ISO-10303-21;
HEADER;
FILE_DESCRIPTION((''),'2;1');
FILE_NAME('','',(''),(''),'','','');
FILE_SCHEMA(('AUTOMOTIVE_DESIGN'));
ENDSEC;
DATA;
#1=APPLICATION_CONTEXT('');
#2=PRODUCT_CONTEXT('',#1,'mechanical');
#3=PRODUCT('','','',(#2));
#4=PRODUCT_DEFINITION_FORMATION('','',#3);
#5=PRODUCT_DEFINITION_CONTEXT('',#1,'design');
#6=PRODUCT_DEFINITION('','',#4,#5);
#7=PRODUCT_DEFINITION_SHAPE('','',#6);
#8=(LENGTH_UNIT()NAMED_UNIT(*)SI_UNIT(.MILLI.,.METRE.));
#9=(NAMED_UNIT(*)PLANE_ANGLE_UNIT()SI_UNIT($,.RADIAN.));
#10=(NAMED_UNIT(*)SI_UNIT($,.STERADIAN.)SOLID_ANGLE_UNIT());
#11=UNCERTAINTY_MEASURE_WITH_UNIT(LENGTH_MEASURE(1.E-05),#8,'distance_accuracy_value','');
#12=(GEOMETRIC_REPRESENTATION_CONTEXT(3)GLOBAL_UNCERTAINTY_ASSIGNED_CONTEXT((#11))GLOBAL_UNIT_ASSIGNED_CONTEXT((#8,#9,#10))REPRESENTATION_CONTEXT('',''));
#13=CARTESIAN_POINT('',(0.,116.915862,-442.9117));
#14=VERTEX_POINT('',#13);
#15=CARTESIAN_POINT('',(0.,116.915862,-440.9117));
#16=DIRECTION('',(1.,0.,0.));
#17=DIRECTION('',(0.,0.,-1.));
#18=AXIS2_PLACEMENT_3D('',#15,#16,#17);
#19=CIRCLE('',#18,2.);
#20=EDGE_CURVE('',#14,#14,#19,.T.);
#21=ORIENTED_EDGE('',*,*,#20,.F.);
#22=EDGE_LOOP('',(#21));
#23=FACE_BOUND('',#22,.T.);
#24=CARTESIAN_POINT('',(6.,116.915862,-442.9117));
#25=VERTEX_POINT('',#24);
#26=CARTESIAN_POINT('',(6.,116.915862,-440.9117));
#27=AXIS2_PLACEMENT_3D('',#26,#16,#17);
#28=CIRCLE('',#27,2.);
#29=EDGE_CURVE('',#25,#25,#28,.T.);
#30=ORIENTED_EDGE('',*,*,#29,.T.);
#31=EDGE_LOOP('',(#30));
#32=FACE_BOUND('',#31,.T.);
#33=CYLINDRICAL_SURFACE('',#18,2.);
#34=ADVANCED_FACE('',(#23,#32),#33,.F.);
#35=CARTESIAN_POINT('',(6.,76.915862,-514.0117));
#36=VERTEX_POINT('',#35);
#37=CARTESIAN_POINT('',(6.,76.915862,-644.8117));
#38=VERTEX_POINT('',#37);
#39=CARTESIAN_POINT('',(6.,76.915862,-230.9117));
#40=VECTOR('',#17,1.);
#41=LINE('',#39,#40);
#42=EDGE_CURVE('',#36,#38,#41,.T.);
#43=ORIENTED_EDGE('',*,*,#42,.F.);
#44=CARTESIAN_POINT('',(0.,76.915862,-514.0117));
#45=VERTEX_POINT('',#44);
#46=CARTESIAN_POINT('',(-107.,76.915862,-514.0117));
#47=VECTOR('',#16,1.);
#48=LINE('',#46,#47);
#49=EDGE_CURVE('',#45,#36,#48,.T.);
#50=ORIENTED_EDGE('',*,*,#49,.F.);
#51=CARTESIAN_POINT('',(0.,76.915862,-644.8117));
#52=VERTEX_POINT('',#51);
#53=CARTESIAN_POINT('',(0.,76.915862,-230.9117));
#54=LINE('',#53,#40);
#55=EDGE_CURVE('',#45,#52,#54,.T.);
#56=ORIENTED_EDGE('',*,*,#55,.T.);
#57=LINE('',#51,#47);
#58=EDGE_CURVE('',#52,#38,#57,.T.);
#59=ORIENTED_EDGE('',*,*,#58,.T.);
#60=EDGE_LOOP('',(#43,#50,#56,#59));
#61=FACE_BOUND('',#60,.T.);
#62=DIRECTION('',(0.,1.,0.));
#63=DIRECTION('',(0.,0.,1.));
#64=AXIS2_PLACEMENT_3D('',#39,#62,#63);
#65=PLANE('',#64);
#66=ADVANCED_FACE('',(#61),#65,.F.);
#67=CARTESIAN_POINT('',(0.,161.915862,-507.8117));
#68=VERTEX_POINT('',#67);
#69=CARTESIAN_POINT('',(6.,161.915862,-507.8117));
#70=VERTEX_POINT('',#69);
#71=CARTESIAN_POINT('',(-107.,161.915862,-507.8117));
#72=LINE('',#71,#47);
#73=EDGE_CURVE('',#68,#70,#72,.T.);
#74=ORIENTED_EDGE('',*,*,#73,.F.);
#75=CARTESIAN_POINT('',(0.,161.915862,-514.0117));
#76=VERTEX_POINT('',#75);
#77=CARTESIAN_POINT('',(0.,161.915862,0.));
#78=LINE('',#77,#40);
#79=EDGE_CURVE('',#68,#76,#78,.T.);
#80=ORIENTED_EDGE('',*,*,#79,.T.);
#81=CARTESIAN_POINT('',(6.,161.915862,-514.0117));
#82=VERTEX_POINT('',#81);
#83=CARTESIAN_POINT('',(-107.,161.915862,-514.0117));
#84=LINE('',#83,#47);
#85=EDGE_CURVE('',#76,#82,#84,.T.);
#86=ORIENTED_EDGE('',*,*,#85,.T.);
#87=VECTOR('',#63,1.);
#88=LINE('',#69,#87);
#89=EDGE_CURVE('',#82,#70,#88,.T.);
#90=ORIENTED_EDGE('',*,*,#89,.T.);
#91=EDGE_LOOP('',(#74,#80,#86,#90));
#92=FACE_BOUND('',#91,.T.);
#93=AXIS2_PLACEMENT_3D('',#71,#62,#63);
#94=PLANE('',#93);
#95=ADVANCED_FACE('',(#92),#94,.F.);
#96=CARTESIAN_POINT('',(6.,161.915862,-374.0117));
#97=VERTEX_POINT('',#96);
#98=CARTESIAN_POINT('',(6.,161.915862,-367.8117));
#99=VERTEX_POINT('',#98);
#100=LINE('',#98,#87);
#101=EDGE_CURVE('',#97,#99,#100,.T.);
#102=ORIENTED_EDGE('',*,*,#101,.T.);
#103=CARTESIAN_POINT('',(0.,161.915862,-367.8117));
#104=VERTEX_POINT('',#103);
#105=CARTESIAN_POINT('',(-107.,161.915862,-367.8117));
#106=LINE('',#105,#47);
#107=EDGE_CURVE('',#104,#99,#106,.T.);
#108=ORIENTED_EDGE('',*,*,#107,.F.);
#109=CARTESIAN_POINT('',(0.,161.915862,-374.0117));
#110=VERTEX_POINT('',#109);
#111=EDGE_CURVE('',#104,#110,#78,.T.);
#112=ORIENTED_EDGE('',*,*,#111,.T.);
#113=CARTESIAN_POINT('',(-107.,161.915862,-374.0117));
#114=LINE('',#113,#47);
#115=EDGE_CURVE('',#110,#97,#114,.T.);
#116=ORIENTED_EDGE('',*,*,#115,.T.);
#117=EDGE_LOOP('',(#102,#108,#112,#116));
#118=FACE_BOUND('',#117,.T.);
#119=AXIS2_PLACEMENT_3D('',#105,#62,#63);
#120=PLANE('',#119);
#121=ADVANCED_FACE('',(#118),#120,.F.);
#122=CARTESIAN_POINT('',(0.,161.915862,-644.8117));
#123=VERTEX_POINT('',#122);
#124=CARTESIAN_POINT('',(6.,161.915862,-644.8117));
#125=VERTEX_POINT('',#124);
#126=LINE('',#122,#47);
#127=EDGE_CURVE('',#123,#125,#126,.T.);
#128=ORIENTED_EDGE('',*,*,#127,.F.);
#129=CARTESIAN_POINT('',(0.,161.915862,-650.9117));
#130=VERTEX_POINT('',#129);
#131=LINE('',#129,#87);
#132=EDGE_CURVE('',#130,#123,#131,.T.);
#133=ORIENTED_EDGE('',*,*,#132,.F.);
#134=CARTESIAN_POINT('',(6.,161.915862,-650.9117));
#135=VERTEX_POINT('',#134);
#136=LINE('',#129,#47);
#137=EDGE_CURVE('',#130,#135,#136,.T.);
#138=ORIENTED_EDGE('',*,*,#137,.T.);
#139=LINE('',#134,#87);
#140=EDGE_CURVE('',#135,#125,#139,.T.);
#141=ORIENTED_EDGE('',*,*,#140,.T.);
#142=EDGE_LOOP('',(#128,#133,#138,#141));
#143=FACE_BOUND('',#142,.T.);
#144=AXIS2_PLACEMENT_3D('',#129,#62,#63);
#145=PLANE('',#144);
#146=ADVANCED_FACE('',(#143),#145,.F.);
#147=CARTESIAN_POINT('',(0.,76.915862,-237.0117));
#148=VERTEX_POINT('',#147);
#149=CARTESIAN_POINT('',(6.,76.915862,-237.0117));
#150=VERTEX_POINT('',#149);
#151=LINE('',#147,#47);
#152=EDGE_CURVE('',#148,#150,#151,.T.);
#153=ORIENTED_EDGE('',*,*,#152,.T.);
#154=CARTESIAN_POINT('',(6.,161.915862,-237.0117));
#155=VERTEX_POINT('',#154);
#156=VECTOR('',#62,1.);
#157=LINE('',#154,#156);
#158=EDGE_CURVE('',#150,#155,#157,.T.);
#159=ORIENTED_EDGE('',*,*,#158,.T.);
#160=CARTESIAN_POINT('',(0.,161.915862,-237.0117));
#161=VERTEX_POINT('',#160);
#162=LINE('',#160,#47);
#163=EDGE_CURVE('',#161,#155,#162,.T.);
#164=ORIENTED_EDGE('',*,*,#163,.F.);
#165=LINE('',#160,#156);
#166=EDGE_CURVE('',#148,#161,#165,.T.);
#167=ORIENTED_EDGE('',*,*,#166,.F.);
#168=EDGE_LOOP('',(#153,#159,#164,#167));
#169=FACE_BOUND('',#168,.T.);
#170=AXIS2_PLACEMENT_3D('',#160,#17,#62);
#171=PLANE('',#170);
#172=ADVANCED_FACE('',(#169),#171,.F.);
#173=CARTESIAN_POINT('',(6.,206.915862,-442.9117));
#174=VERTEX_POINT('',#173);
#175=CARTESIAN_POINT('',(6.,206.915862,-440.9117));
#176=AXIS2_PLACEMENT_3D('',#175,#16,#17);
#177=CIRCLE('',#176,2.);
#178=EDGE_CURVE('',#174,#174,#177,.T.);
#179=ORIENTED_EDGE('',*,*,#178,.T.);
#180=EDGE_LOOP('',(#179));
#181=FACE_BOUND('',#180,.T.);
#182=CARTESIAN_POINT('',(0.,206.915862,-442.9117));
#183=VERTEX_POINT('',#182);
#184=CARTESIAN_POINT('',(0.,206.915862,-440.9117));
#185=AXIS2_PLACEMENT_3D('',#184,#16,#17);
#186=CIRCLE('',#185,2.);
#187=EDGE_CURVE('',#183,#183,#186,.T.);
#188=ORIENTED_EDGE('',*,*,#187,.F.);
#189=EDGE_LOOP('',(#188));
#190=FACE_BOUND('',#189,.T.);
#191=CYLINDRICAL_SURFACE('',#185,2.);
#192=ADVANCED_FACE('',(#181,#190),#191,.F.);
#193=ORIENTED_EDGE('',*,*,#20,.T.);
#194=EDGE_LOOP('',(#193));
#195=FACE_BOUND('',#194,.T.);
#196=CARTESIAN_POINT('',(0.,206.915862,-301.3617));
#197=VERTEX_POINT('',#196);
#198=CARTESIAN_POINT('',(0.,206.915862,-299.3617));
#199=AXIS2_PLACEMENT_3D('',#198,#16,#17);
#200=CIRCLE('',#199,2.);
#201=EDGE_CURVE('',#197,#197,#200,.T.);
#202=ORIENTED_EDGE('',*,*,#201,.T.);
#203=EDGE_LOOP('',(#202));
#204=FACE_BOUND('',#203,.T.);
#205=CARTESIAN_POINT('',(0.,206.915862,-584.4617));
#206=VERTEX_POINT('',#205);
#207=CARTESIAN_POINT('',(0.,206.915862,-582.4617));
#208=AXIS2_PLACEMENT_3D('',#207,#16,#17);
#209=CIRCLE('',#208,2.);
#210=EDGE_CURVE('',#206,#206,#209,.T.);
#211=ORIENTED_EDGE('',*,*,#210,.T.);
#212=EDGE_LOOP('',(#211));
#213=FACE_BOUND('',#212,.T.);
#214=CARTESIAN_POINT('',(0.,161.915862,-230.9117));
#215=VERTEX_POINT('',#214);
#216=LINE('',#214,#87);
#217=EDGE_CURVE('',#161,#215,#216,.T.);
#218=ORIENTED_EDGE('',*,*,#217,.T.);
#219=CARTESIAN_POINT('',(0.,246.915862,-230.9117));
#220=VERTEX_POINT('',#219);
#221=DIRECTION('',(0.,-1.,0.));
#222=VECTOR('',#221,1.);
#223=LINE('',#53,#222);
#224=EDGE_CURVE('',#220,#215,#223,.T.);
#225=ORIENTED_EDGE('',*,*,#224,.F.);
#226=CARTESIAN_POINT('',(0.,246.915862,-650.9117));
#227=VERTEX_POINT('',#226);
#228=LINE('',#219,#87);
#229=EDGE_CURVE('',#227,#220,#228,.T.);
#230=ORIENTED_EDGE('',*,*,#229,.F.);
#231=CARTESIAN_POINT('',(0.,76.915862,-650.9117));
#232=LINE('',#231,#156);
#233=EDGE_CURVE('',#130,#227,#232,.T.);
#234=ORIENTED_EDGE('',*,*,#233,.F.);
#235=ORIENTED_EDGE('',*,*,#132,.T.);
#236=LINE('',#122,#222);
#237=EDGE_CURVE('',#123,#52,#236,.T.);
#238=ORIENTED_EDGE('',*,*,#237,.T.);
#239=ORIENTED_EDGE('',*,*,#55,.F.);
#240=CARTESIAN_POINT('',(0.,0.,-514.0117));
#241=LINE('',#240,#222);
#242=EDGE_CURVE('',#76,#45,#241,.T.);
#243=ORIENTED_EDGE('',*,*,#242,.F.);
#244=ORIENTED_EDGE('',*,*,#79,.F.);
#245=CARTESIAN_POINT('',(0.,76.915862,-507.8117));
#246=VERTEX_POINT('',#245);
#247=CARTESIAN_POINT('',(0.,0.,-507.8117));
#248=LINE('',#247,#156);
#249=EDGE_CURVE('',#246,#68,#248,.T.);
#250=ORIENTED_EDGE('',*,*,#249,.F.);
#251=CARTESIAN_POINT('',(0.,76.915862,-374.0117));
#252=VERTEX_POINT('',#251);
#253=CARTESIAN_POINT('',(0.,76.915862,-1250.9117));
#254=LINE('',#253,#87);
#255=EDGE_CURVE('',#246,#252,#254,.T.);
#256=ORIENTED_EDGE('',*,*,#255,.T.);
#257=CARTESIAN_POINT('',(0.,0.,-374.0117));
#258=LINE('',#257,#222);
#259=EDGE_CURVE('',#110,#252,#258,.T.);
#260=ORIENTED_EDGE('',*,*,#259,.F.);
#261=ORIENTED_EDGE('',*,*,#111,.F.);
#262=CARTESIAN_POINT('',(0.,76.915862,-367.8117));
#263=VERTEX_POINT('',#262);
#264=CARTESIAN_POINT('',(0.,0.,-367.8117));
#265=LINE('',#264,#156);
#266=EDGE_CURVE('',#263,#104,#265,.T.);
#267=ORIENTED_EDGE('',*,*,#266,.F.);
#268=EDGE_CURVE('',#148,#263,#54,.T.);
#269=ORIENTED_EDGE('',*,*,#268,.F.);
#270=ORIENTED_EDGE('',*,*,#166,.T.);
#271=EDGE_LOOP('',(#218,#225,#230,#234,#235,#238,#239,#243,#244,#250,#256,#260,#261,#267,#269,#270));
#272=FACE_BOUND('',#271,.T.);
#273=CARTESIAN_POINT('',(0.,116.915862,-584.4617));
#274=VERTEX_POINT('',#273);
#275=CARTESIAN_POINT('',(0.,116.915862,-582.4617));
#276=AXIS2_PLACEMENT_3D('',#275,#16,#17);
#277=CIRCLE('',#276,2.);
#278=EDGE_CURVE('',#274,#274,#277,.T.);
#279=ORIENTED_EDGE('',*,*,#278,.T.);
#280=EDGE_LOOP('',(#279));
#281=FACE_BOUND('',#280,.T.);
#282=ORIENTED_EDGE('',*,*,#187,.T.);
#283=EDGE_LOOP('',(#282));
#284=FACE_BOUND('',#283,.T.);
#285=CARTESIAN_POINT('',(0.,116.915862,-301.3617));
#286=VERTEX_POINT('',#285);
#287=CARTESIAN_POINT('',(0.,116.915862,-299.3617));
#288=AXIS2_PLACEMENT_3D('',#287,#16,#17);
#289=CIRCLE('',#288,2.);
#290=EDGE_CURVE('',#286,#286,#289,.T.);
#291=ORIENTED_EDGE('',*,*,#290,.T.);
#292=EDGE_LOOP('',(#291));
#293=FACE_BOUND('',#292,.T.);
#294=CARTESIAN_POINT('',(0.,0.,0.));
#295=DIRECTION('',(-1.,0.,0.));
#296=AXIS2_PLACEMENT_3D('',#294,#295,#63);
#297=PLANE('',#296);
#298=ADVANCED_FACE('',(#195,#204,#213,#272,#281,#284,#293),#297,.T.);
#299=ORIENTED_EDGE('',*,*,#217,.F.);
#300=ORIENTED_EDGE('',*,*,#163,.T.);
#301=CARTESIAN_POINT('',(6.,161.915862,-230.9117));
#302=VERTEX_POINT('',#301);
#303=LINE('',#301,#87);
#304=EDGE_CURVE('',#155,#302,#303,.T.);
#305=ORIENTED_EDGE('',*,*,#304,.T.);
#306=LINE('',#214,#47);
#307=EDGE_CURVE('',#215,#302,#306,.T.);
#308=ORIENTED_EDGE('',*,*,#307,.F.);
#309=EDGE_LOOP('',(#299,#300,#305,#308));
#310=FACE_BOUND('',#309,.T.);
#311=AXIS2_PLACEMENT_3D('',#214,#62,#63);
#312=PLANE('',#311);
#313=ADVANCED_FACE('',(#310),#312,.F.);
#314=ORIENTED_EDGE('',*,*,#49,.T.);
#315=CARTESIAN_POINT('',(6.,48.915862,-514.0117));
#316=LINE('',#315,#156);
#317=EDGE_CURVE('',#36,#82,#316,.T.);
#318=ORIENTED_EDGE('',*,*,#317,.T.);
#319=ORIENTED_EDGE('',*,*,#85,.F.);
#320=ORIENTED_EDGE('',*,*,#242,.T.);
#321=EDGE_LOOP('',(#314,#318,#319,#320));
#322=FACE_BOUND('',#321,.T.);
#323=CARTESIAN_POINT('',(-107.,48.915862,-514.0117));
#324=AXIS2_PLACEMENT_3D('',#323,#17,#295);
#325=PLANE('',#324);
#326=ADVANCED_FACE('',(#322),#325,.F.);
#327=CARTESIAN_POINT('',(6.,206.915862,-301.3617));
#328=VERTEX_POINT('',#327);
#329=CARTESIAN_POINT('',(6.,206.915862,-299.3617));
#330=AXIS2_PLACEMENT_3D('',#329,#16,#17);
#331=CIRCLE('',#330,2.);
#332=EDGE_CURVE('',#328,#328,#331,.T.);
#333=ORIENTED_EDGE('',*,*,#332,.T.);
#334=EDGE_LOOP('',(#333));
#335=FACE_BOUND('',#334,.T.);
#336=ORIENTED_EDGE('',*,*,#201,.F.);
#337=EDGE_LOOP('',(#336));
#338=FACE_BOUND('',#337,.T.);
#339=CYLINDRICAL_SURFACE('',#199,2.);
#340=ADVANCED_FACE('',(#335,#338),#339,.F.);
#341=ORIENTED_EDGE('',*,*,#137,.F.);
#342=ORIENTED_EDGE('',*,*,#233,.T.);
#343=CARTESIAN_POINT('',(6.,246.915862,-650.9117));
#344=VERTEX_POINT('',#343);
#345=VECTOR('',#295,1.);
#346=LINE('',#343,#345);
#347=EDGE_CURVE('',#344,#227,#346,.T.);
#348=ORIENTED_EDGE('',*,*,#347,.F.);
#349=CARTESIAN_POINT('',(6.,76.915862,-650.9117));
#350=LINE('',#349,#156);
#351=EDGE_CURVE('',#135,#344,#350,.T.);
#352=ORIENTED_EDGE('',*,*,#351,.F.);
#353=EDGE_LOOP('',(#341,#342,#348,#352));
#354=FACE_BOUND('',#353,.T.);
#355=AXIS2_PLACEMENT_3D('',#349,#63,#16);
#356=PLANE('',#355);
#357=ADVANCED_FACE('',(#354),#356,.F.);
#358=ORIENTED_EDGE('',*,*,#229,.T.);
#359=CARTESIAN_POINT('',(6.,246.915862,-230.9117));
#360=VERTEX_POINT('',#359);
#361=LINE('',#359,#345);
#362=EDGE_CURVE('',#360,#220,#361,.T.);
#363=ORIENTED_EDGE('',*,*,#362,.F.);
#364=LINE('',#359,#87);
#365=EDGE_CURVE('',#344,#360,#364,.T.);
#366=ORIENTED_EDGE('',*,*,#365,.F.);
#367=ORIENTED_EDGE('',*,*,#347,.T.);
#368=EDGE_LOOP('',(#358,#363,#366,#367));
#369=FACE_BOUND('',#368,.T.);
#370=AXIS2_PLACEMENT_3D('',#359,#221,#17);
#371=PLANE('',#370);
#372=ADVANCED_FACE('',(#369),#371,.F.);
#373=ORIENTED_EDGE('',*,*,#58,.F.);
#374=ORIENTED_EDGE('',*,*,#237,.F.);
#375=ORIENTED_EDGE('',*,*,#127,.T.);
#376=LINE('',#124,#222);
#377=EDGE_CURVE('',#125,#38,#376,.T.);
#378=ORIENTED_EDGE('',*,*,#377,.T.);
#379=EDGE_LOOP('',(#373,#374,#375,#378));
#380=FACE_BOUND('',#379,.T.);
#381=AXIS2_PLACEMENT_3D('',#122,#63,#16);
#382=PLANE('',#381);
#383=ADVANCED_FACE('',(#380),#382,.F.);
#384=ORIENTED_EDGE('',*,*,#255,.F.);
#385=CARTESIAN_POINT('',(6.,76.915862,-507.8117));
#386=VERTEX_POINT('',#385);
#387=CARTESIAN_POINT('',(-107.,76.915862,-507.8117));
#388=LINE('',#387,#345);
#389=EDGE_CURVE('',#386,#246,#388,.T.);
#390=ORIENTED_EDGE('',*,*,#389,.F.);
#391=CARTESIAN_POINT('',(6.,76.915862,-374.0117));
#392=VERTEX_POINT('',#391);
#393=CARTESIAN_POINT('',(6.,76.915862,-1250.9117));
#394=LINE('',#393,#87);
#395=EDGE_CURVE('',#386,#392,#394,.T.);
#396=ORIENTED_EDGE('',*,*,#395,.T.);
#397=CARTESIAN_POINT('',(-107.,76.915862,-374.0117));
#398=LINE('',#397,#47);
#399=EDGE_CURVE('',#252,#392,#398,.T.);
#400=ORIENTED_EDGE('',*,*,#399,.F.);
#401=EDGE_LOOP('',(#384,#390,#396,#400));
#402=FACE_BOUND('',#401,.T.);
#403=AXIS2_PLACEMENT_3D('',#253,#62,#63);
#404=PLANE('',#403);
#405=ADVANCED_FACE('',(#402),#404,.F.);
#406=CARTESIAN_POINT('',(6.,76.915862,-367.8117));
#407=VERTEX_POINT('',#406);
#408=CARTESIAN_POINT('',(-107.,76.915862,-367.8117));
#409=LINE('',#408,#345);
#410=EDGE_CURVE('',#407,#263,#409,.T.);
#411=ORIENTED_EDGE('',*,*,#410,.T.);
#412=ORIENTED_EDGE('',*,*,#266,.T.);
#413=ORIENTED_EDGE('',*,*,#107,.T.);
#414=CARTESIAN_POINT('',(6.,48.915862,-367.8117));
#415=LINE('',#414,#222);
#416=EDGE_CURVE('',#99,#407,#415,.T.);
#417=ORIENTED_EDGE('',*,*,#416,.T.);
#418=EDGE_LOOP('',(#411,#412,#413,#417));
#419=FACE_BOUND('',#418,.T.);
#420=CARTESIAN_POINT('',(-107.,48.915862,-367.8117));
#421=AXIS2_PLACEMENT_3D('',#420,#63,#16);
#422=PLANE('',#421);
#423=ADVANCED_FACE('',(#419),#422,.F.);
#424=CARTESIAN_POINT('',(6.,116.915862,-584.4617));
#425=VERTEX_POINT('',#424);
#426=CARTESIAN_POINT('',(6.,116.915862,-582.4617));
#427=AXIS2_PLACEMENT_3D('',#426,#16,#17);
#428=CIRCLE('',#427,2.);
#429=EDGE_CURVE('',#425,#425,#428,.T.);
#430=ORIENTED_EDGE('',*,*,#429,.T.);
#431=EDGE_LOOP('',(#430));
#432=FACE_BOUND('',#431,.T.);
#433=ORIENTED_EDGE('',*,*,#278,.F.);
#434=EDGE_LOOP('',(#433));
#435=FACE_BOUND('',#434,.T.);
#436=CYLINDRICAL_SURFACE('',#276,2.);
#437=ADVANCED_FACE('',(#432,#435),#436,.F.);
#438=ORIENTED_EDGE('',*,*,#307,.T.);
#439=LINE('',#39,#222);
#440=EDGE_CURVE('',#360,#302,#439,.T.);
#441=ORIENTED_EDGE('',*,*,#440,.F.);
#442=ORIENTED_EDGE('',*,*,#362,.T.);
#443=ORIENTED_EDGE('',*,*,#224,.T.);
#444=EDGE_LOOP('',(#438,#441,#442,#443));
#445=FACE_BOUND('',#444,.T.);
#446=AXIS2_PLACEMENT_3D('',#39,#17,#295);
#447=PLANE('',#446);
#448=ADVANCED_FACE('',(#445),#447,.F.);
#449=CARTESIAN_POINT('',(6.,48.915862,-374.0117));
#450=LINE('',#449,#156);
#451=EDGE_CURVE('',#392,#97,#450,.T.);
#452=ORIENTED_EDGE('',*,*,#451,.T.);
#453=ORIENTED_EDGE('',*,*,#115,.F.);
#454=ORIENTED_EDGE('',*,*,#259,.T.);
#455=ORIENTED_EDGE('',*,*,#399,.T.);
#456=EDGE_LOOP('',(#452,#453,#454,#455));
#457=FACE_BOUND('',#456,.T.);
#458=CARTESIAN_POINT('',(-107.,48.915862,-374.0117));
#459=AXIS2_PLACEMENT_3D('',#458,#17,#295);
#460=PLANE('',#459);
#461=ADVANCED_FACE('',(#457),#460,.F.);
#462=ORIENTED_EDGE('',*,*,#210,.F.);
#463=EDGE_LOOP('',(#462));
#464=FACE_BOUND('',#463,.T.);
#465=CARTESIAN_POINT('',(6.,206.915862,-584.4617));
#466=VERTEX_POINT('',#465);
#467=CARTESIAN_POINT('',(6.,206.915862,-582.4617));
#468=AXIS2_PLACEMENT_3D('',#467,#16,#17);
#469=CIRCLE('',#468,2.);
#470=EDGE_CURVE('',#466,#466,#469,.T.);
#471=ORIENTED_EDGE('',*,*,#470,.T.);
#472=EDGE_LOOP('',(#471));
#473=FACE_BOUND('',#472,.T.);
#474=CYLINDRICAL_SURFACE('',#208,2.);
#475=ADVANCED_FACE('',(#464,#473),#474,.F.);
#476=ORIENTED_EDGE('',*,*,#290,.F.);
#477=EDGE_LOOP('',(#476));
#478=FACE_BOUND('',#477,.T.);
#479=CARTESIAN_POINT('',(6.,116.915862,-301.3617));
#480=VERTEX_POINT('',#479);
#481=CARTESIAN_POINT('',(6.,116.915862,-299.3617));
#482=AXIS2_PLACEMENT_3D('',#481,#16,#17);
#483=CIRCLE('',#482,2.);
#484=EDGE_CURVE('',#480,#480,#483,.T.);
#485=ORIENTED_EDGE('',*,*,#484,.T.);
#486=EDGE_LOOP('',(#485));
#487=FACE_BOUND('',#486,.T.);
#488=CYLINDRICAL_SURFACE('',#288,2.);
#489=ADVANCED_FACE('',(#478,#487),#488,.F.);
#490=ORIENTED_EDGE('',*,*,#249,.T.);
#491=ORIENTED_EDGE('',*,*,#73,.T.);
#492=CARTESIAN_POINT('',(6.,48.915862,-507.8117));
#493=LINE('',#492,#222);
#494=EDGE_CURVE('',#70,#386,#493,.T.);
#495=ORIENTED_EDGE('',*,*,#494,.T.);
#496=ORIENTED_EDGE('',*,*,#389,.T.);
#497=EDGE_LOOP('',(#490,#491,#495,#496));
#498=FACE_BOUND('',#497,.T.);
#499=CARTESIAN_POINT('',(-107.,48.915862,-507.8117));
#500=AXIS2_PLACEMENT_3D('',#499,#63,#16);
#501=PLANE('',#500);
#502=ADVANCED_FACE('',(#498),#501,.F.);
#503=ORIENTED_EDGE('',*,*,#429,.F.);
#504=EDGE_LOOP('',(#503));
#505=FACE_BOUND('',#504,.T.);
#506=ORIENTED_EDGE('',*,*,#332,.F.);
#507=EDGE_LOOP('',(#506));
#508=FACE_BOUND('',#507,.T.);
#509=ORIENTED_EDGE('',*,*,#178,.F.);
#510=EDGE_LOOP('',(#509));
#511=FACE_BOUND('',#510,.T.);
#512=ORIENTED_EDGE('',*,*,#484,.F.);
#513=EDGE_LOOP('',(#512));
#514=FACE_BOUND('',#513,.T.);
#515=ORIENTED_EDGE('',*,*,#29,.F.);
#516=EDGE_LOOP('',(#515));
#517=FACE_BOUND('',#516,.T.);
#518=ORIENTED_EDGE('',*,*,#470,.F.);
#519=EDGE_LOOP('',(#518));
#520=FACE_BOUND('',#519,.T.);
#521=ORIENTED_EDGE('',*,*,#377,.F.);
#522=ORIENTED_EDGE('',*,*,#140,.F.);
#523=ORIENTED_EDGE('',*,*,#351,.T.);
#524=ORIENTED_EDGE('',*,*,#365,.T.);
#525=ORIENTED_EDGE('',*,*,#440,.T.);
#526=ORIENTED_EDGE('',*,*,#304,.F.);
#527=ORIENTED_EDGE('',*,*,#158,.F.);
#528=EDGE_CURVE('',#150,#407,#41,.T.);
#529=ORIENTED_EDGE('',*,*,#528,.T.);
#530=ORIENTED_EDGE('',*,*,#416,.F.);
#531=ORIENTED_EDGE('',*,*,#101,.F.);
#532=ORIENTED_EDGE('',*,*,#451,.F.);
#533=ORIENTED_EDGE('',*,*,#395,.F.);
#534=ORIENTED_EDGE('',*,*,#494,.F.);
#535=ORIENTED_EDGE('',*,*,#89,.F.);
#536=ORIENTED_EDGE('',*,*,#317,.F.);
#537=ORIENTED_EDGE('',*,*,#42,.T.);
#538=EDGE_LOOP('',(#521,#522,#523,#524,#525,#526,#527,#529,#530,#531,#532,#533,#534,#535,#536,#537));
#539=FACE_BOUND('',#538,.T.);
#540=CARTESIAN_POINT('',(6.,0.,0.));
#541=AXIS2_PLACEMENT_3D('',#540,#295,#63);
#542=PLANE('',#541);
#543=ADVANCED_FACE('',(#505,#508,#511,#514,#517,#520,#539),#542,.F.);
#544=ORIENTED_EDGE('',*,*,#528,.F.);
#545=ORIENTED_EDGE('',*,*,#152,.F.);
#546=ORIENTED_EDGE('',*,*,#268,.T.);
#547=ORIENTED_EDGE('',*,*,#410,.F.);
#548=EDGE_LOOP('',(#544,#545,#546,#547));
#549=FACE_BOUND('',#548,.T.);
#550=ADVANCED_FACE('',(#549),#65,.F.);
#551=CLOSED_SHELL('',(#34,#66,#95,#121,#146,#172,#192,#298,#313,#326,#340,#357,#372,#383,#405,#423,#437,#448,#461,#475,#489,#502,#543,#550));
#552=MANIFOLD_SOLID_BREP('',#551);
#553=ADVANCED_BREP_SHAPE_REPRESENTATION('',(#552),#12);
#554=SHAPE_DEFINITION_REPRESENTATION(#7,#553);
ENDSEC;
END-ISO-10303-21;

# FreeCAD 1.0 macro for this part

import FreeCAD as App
import Part
import Sketcher
from FreeCAD import Vector
Q = App.Units.Quantity

doc = App.newDocument("Part")
body = doc.addObject("PartDesign::Body", "Body")

sketch1 = body.newObject("Sketcher::SketchObject", "Sketch")
sketch1.AttachmentSupport = (doc.getObject("YZ_Plane"), [""])
sketch1.MapMode = "FlatFace"
sketch1.addGeometry(Part.LineSegment(Vector(247, -231, 0), Vector(77, -231, 0)), False)
sketch1.addGeometry(Part.LineSegment(Vector(77, -231, 0), Vector(77, -651, 0)), False)
sketch1.addGeometry(Part.LineSegment(Vector(77, -651, 0), Vector(247, -651, 0)), False)
sketch1.addGeometry(Part.LineSegment(Vector(247, -651, 0), Vector(247, -231, 0)), False)
sketch1.addConstraint(Sketcher.Constraint("Coincident", 0, 2, 1, 1))
sketch1.addConstraint(Sketcher.Constraint("Coincident", 1, 2, 2, 1))
sketch1.addConstraint(Sketcher.Constraint("Coincident", 2, 2, 3, 1))
sketch1.addConstraint(Sketcher.Constraint("Coincident", 3, 2, 0, 1))
sketch1.addConstraint(Sketcher.Constraint("Horizontal", 0))
sketch1.addConstraint(Sketcher.Constraint("Vertical", 1))
sketch1.addConstraint(Sketcher.Constraint("Horizontal", 2))
sketch1.addConstraint(Sketcher.Constraint("Vertical", 3))
sketch1.addConstraint(Sketcher.Constraint("DistanceX", 0, 2, 0, 1, Q("170 mm")))
sketch1.addConstraint(Sketcher.Constraint("DistanceY", 1, 2, 1, 1, Q("420 mm")))
sketch1.addConstraint(Sketcher.Constraint("DistanceY", 0, 2, -1, 1, Q("230.9117 mm")))
sketch1.addConstraint(Sketcher.Constraint("DistanceX", -1, 1, 0, 2, Q("76.915862 mm")))
pad1 = body.newObject("PartDesign::Pad", "Pad")
pad1.Profile = sketch1
pad1.Length = 6

sketch2 = body.newObject("Sketcher::SketchObject", "Sketch001")
sketch2.AttachmentSupport = (doc.getObject("YZ_Plane"), [""])
sketch2.MapMode = "FlatFace"
sketch2.AttachmentOffset = App.Placement(Vector(0, 0, 6), App.Rotation())
sketch2.addGeometry(Part.LineSegment(Vector(162, -231, 0), Vector(77, -231, 0)), False)
sketch2.addGeometry(Part.LineSegment(Vector(77, -231, 0), Vector(77, -237, 0)), False)
sketch2.addGeometry(Part.LineSegment(Vector(77, -237, 0), Vector(162, -237, 0)), False)
sketch2.addGeometry(Part.LineSegment(Vector(162, -237, 0), Vector(162, -231, 0)), False)
sketch2.addGeometry(Part.LineSegment(Vector(162, -645, 0), Vector(77, -645, 0)), False)
sketch2.addGeometry(Part.LineSegment(Vector(77, -645, 0), Vector(77, -651, 0)), False)
sketch2.addGeometry(Part.LineSegment(Vector(77, -651, 0), Vector(162, -651, 0)), False)
sketch2.addGeometry(Part.LineSegment(Vector(162, -651, 0), Vector(162, -645, 0)), False)
sketch2.addGeometry(Part.LineSegment(Vector(247, -368, 0), Vector(162, -368, 0)), False)
sketch2.addGeometry(Part.LineSegment(Vector(162, -368, 0), Vector(162, -374, 0)), False)
sketch2.addGeometry(Part.LineSegment(Vector(162, -374, 0), Vector(247, -374, 0)), False)
sketch2.addGeometry(Part.LineSegment(Vector(247, -374, 0), Vector(247, -368, 0)), False)
sketch2.addGeometry(Part.LineSegment(Vector(247, -508, 0), Vector(162, -508, 0)), False)
sketch2.addGeometry(Part.LineSegment(Vector(162, -508, 0), Vector(162, -514, 0)), False)
sketch2.addGeometry(Part.LineSegment(Vector(162, -514, 0), Vector(247, -514, 0)), False)
sketch2.addGeometry(Part.LineSegment(Vector(247, -514, 0), Vector(247, -508, 0)), False)
sketch2.addConstraint(Sketcher.Constraint("Coincident", 0, 2, 1, 1))
sketch2.addConstraint(Sketcher.Constraint("Coincident", 1, 2, 2, 1))
sketch2.addConstraint(Sketcher.Constraint("Coincident", 2, 2, 3, 1))
sketch2.addConstraint(Sketcher.Constraint("Coincident", 3, 2, 0, 1))
sketch2.addConstraint(Sketcher.Constraint("Coincident", 4, 2, 5, 1))
sketch2.addConstraint(Sketcher.Constraint("Coincident", 5, 2, 6, 1))
sketch2.addConstraint(Sketcher.Constraint("Coincident", 6, 2, 7, 1))
sketch2.addConstraint(Sketcher.Constraint("Coincident", 7, 2, 4, 1))
sketch2.addConstraint(Sketcher.Constraint("Coincident", 8, 2, 9, 1))
sketch2.addConstraint(Sketcher.Constraint("Coincident", 9, 2, 10, 1))
sketch2.addConstraint(Sketcher.Constraint("Coincident", 10, 2, 11, 1))
sketch2.addConstraint(Sketcher.Constraint("Coincident", 11, 2, 8, 1))
sketch2.addConstraint(Sketcher.Constraint("Coincident", 12, 2, 13, 1))
sketch2.addConstraint(Sketcher.Constraint("Coincident", 13, 2, 14, 1))
sketch2.addConstraint(Sketcher.Constraint("Coincident", 14, 2, 15, 1))
sketch2.addConstraint(Sketcher.Constraint("Coincident", 15, 2, 12, 1))
sketch2.addConstraint(Sketcher.Constraint("Horizontal", 0))
sketch2.addConstraint(Sketcher.Constraint("Vertical", 1))
sketch2.addConstraint(Sketcher.Constraint("Horizontal", 2))
sketch2.addConstraint(Sketcher.Constraint("Vertical", 3))
sketch2.addConstraint(Sketcher.Constraint("Horizontal", 4))
sketch2.addConstraint(Sketcher.Constraint("Vertical", 5))
sketch2.addConstraint(Sketcher.Constraint("Horizontal", 6))
sketch2.addConstraint(Sketcher.Constraint("Vertical", 7))
sketch2.addConstraint(Sketcher.Constraint("Horizontal", 8))
sketch2.addConstraint(Sketcher.Constraint("Vertical", 9))
sketch2.addConstraint(Sketcher.Constraint("Horizontal", 10))
sketch2.addConstraint(Sketcher.Constraint("Vertical", 11))
sketch2.addConstraint(Sketcher.Constraint("Horizontal", 12))
sketch2.addConstraint(Sketcher.Constraint("Vertical", 13))
sketch2.addConstraint(Sketcher.Constraint("Horizontal", 14))
sketch2.addConstraint(Sketcher.Constraint("Vertical", 15))
sketch2.addConstraint(Sketcher.Constraint("Vertical", 1, 2, 4, 2))
sketch2.addConstraint(Sketcher.Constraint("Vertical", 3, 2, 6, 2))
sketch2.addConstraint(Sketcher.Constraint("Vertical", 7, 2, 8, 2))
sketch2.addConstraint(Sketcher.Constraint("Vertical", 9, 2, 12, 2))
sketch2.addConstraint(Sketcher.Constraint("Vertical", 11, 2, 14, 2))
sketch2.addConstraint(Sketcher.Constraint("Equal", 6, 8))
sketch2.addConstraint(Sketcher.Constraint("Equal", 3, 5))
sketch2.addConstraint(Sketcher.Constraint("Equal", 11, 13))
sketch2.addConstraint(Sketcher.Constraint("DistanceX", 0, 2, 0, 1, Q("85 mm")))
sketch2.addConstraint(Sketcher.Constraint("DistanceY", 1, 2, 1, 1, Q("6.1 mm")))
sketch2.addConstraint(Sketcher.Constraint("DistanceY", 9, 2, 9, 1, Q("6.2 mm")))
sketch2.addConstraint(Sketcher.Constraint("DistanceY", 5, 2, 0, 2, Q("420 mm")))
sketch2.addConstraint(Sketcher.Constraint("DistanceY", 7, 2, 8, 2, Q("277 mm")))
sketch2.addConstraint(Sketcher.Constraint("DistanceY", 7, 2, 12, 2, Q("137 mm")))
sketch2.addConstraint(Sketcher.Constraint("DistanceY", 0, 2, -1, 1, Q("230.9117 mm")))
sketch2.addConstraint(Sketcher.Constraint("DistanceX", -1, 1, 0, 2, Q("76.915862 mm")))
pocket1 = body.newObject("PartDesign::Pocket", "Pocket")
pocket1.Profile = sketch2
pocket1.Length = 6

sketch3 = body.newObject("Sketcher::SketchObject", "Sketch002")
sketch3.AttachmentSupport = (doc.getObject("YZ_Plane"), [""])
sketch3.MapMode = "FlatFace"
sketch3.AttachmentOffset = App.Placement(Vector(0, 0, 6), App.Rotation())
sketch3.addGeometry(Part.Circle(Vector(206.9, -299.4, 0), Vector(0, 0, 1), 2), False)
sketch3.addGeometry(Part.Circle(Vector(116.9, -299.4, 0), Vector(0, 0, 1), 2), False)
sketch3.addGeometry(Part.Circle(Vector(206.9, -440.9, 0), Vector(0, 0, 1), 2), False)
sketch3.addGeometry(Part.Circle(Vector(206.9, -582.5, 0), Vector(0, 0, 1), 2), False)
sketch3.addGeometry(Part.Circle(Vector(116.9, -582.5, 0), Vector(0, 0, 1), 2), False)
sketch3.addGeometry(Part.Circle(Vector(116.9, -440.9, 0), Vector(0, 0, 1), 2), False)
sketch3.addConstraint(Sketcher.Constraint("Equal", 0, 1))
sketch3.addConstraint(Sketcher.Constraint("Equal", 1, 2))
sketch3.addConstraint(Sketcher.Constraint("Equal", 2, 3))
sketch3.addConstraint(Sketcher.Constraint("Equal", 3, 4))
sketch3.addConstraint(Sketcher.Constraint("Equal", 4, 5))
sketch3.addConstraint(Sketcher.Constraint("Horizontal", 0, 3, 1, 3))
sketch3.addConstraint(Sketcher.Constraint("Horizontal", 3, 3, 4, 3))
sketch3.addConstraint(Sketcher.Constraint("Horizontal", 2, 3, 5, 3))
sketch3.addConstraint(Sketcher.Constraint("Vertical", 0, 3, 2, 3))
sketch3.addConstraint(Sketcher.Constraint("Vertical", 2, 3, 3, 3))
sketch3.addConstraint(Sketcher.Constraint("Vertical", 1, 3, 4, 3))
sketch3.addConstraint(Sketcher.Constraint("Vertical", 4, 3, 5, 3))
sketch3.addConstraint(Sketcher.Constraint("Diameter", 0, Q("4 mm")))
sketch3.addConstraint(Sketcher.Constraint("DistanceX", 1, 3, 0, 3, Q("90 mm")))
sketch3.addConstraint(Sketcher.Constraint("DistanceY", 3, 3, 0, 3, Q("283.1 mm")))
sketch3.addConstraint(Sketcher.Constraint("DistanceY", 2, 3, 0, 3, Q("141.55 mm")))
sketch3.addConstraint(Sketcher.Constraint("DistanceY", 0, 3, -1, 1, Q("299.3617 mm")))
sketch3.addConstraint(Sketcher.Constraint("DistanceX", -1, 1, 0, 3, Q("206.915862 mm")))
pocket2 = body.newObject("PartDesign::Pocket", "Pocket001")
pocket2.Profile = sketch3
pocket2.Length = 6

sketch4 = body.newObject("Sketcher::SketchObject", "Sketch003")
sketch4.AttachmentSupport = (doc.getObject("XZ_Plane"), [""])
sketch4.MapMode = "FlatFace"
sketch4.AttachmentOffset = App.Placement(Vector(0, 0, -76.915862), App.Rotation())
sketch4.addGeometry(Part.LineSegment(Vector(0, -251, 0), Vector(0, -631, 0)), False)
sketch4.addGeometry(Part.LineSegment(Vector(0, -631, 0), Vector(6, -631, 0)), False)
sketch4.addGeometry(Part.LineSegment(Vector(6, -631, 0), Vector(6, -251, 0)), False)
sketch4.addGeometry(Part.LineSegment(Vector(6, -251, 0), Vector(0, -251, 0)), False)
sketch4.addConstraint(Sketcher.Constraint("Coincident", 0, 2, 1, 1))
sketch4.addConstraint(Sketcher.Constraint("Coincident", 1, 2, 2, 1))
sketch4.addConstraint(Sketcher.Constraint("Coincident", 2, 2, 3, 1))
sketch4.addConstraint(Sketcher.Constraint("Coincident", 3, 2, 0, 1))
sketch4.addConstraint(Sketcher.Constraint("Vertical", 0))
sketch4.addConstraint(Sketcher.Constraint("Horizontal", 1))
sketch4.addConstraint(Sketcher.Constraint("Vertical", 2))
sketch4.addConstraint(Sketcher.Constraint("Horizontal", 3))
sketch4.addConstraint(Sketcher.Constraint("PointOnObject", 0, 2, -2))
sketch4.addConstraint(Sketcher.Constraint("DistanceX", 1, 1, 1, 2, Q("6 mm")))
sketch4.addConstraint(Sketcher.Constraint("DistanceY", 0, 2, 0, 1, Q("380 mm")))
sketch4.addConstraint(Sketcher.Constraint("DistanceY", 0, 2, -1, 1, Q("630.9117 mm")))
pad2 = body.newObject("PartDesign::Pad", "Pad001")
pad2.Profile = sketch4
pad2.Length = 30

sketch5 = body.newObject("Sketcher::SketchObject", "Sketch004")
sketch5.AttachmentSupport = (doc.getObject("XZ_Plane"), [""])
sketch5.MapMode = "FlatFace"
sketch5.AttachmentOffset = App.Placement(Vector(0, 0, -46.915862), App.Rotation())
sketch5.addGeometry(Part.LineSegment(Vector(0, -251, 0), Vector(0, -631, 0)), False)
sketch5.addGeometry(Part.LineSegment(Vector(0, -631, 0), Vector(6, -631, 0)), False)
sketch5.addGeometry(Part.LineSegment(Vector(6, -631, 0), Vector(6, -251, 0)), False)
sketch5.addGeometry(Part.LineSegment(Vector(6, -251, 0), Vector(0, -251, 0)), False)
sketch5.addConstraint(Sketcher.Constraint("Coincident", 0, 2, 1, 1))
sketch5.addConstraint(Sketcher.Constraint("Coincident", 1, 2, 2, 1))
sketch5.addConstraint(Sketcher.Constraint("Coincident", 2, 2, 3, 1))
sketch5.addConstraint(Sketcher.Constraint("Coincident", 3, 2, 0, 1))
sketch5.addConstraint(Sketcher.Constraint("Vertical", 0))
sketch5.addConstraint(Sketcher.Constraint("Horizontal", 1))
sketch5.addConstraint(Sketcher.Constraint("Vertical", 2))
sketch5.addConstraint(Sketcher.Constraint("Horizontal", 3))
sketch5.addConstraint(Sketcher.Constraint("PointOnObject", 0, 2, -2))
sketch5.addConstraint(Sketcher.Constraint("DistanceX", 1, 1, 1, 2, Q("6 mm")))
sketch5.addConstraint(Sketcher.Constraint("DistanceY", 0, 2, 0, 1, Q("380 mm")))
sketch5.addConstraint(Sketcher.Constraint("DistanceY", 0, 2, -1, 1, Q("630.9117 mm")))
pocket3 = body.newObject("PartDesign::Pocket", "Pocket002")
pocket3.Profile = sketch5
pocket3.Length = 2

sketch6 = body.newObject("Sketcher::SketchObject", "Sketch005")
sketch6.AttachmentSupport = (doc.getObject("XZ_Plane"), [""])
sketch6.MapMode = "FlatFace"
sketch6.AttachmentOffset = App.Placement(Vector(0, 0, -246.915862), App.Rotation())
sketch6.addGeometry(Part.LineSegment(Vector(0, -368, 0), Vector(0, -251, 0)), False)
sketch6.addGeometry(Part.LineSegment(Vector(0, -251, 0), Vector(6, -251, 0)), False)
sketch6.addGeometry(Part.LineSegment(Vector(6, -251, 0), Vector(6, -368, 0)), False)
sketch6.addGeometry(Part.LineSegment(Vector(6, -368, 0), Vector(0, -368, 0)), False)
sketch6.addGeometry(Part.LineSegment(Vector(0, -631, 0), Vector(0, -514, 0)), False)
sketch6.addGeometry(Part.LineSegment(Vector(0, -514, 0), Vector(6, -514, 0)), False)
sketch6.addGeometry(Part.LineSegment(Vector(6, -514, 0), Vector(6, -631, 0)), False)
sketch6.addGeometry(Part.LineSegment(Vector(6, -631, 0), Vector(0, -631, 0)), False)
sketch6.addGeometry(Part.LineSegment(Vector(0, -508, 0), Vector(0, -374, 0)), False)
sketch6.addGeometry(Part.LineSegment(Vector(0, -374, 0), Vector(6, -374, 0)), False)
sketch6.addGeometry(Part.LineSegment(Vector(6, -374, 0), Vector(6, -508, 0)), False)
sketch6.addGeometry(Part.LineSegment(Vector(6, -508, 0), Vector(0, -508, 0)), False)
sketch6.addConstraint(Sketcher.Constraint("Coincident", 0, 2, 1, 1))
sketch6.addConstraint(Sketcher.Constraint("Coincident", 1, 2, 2, 1))
sketch6.addConstraint(Sketcher.Constraint("Coincident", 2, 2, 3, 1))
sketch6.addConstraint(Sketcher.Constraint("Coincident", 3, 2, 0, 1))
sketch6.addConstraint(Sketcher.Constraint("Coincident", 4, 2, 5, 1))
sketch6.addConstraint(Sketcher.Constraint("Coincident", 5, 2, 6, 1))
sketch6.addConstraint(Sketcher.Constraint("Coincident", 6, 2, 7, 1))
sketch6.addConstraint(Sketcher.Constraint("Coincident", 7, 2, 4, 1))
sketch6.addConstraint(Sketcher.Constraint("Coincident", 8, 2, 9, 1))
sketch6.addConstraint(Sketcher.Constraint("Coincident", 9, 2, 10, 1))
sketch6.addConstraint(Sketcher.Constraint("Coincident", 10, 2, 11, 1))
sketch6.addConstraint(Sketcher.Constraint("Coincident", 11, 2, 8, 1))
sketch6.addConstraint(Sketcher.Constraint("Vertical", 0))
sketch6.addConstraint(Sketcher.Constraint("Horizontal", 1))
sketch6.addConstraint(Sketcher.Constraint("Vertical", 2))
sketch6.addConstraint(Sketcher.Constraint("Horizontal", 3))
sketch6.addConstraint(Sketcher.Constraint("Vertical", 4))
sketch6.addConstraint(Sketcher.Constraint("Horizontal", 5))
sketch6.addConstraint(Sketcher.Constraint("Vertical", 6))
sketch6.addConstraint(Sketcher.Constraint("Horizontal", 7))
sketch6.addConstraint(Sketcher.Constraint("Vertical", 8))
sketch6.addConstraint(Sketcher.Constraint("Horizontal", 9))
sketch6.addConstraint(Sketcher.Constraint("Vertical", 10))
sketch6.addConstraint(Sketcher.Constraint("Horizontal", 11))
sketch6.addConstraint(Sketcher.Constraint("PointOnObject", 0, 2, -2))
sketch6.addConstraint(Sketcher.Constraint("PointOnObject", 4, 2, -2))
sketch6.addConstraint(Sketcher.Constraint("PointOnObject", 8, 2, -2))
sketch6.addConstraint(Sketcher.Constraint("Vertical", 2, 2, 5, 2))
sketch6.addConstraint(Sketcher.Constraint("Vertical", 6, 2, 9, 2))
sketch6.addConstraint(Sketcher.Constraint("Equal", 2, 4))
sketch6.addConstraint(Sketcher.Constraint("DistanceX", 1, 1, 1, 2, Q("6 mm")))
sketch6.addConstraint(Sketcher.Constraint("DistanceY", 0, 1, 0, 2, Q("116.9 mm")))
sketch6.addConstraint(Sketcher.Constraint("DistanceY", 8, 1, 8, 2, Q("133.8 mm")))
sketch6.addConstraint(Sketcher.Constraint("DistanceY", 6, 2, 1, 2, Q("380 mm")))
sketch6.addConstraint(Sketcher.Constraint("DistanceY", 4, 2, 8, 2, Q("140 mm")))
sketch6.addConstraint(Sketcher.Constraint("DistanceY", 0, 2, -1, 1, Q("250.9117 mm")))
pad3 = body.newObject("PartDesign::Pad", "Pad002")
pad3.Profile = sketch6
pad3.Length = 28
pad3.Reversed = True

sketch7 = body.newObject("Sketcher::SketchObject", "Sketch006")
sketch7.AttachmentSupport = (doc.getObject("XZ_Plane"), [""])
sketch7.MapMode = "FlatFace"
sketch7.AttachmentOffset = App.Placement(Vector(0, 0, -161.915862), App.Rotation())
sketch7.addGeometry(Part.LineSegment(Vector(0, -374, 0), Vector(0, -368, 0)), False)
sketch7.addGeometry(Part.LineSegment(Vector(0, -368, 0), Vector(6, -368, 0)), False)
sketch7.addGeometry(Part.LineSegment(Vector(6, -368, 0), Vector(6, -374, 0)), False)
sketch7.addGeometry(Part.LineSegment(Vector(6, -374, 0), Vector(0, -374, 0)), False)
sketch7.addConstraint(Sketcher.Constraint("Coincident", 0, 2, 1, 1))
sketch7.addConstraint(Sketcher.Constraint("Coincident", 1, 2, 2, 1))
sketch7.addConstraint(Sketcher.Constraint("Coincident", 2, 2, 3, 1))
sketch7.addConstraint(Sketcher.Constraint("Coincident", 3, 2, 0, 1))
sketch7.addConstraint(Sketcher.Constraint("Vertical", 0))
sketch7.addConstraint(Sketcher.Constraint("Horizontal", 1))
sketch7.addConstraint(Sketcher.Constraint("Vertical", 2))
sketch7.addConstraint(Sketcher.Constraint("Horizontal", 3))
sketch7.addConstraint(Sketcher.Constraint("PointOnObject", 0, 2, -2))
sketch7.addConstraint(Sketcher.Constraint("DistanceX", 1, 1, 1, 2, Q("6 mm")))
sketch7.addConstraint(Sketcher.Constraint("DistanceY", 0, 1, 0, 2, Q("6.2 mm")))
sketch7.addConstraint(Sketcher.Constraint("DistanceY", 0, 2, -1, 1, Q("367.8117 mm")))
pad4 = body.newObject("PartDesign::Pad", "Pad003")
pad4.Profile = sketch7
pad4.Length = 113
pad4.Reversed = True

sketch8 = body.newObject("Sketcher::SketchObject", "Sketch007")
sketch8.AttachmentSupport = (doc.getObject("XZ_Plane"), [""])
sketch8.MapMode = "FlatFace"
sketch8.AttachmentOffset = App.Placement(Vector(0, 0, -161.915862), App.Rotation())
sketch8.addGeometry(Part.LineSegment(Vector(0, -514, 0), Vector(0, -508, 0)), False)
sketch8.addGeometry(Part.LineSegment(Vector(0, -508, 0), Vector(6, -508, 0)), False)
sketch8.addGeometry(Part.LineSegment(Vector(6, -508, 0), Vector(6, -514, 0)), False)
sketch8.addGeometry(Part.LineSegment(Vector(6, -514, 0), Vector(0, -514, 0)), False)
sketch8.addConstraint(Sketcher.Constraint("Coincident", 0, 2, 1, 1))
sketch8.addConstraint(Sketcher.Constraint("Coincident", 1, 2, 2, 1))
sketch8.addConstraint(Sketcher.Constraint("Coincident", 2, 2, 3, 1))
sketch8.addConstraint(Sketcher.Constraint("Coincident", 3, 2, 0, 1))
sketch8.addConstraint(Sketcher.Constraint("Vertical", 0))
sketch8.addConstraint(Sketcher.Constraint("Horizontal", 1))
sketch8.addConstraint(Sketcher.Constraint("Vertical", 2))
sketch8.addConstraint(Sketcher.Constraint("Horizontal", 3))
sketch8.addConstraint(Sketcher.Constraint("PointOnObject", 0, 2, -2))
sketch8.addConstraint(Sketcher.Constraint("DistanceX", 1, 1, 1, 2, Q("6 mm")))
sketch8.addConstraint(Sketcher.Constraint("DistanceY", 0, 1, 0, 2, Q("6.2 mm")))
sketch8.addConstraint(Sketcher.Constraint("DistanceY", 0, 2, -1, 1, Q("507.8117 mm")))
pad5 = body.newObject("PartDesign::Pad", "Pad004")
pad5.Profile = sketch8
pad5.Length = 113
pad5.Reversed = True

sketch9 = body.newObject("Sketcher::SketchObject", "Sketch008")
sketch9.AttachmentSupport = (doc.getObject("YZ_Plane"), [""])
sketch9.MapMode = "FlatFace"
sketch9.AttachmentOffset = App.Placement(Vector(0, 0, 6), App.Rotation())
sketch9.addGeometry(Part.LineSegment(Vector(162, -368, 0), Vector(49, -368, 0)), False)
sketch9.addGeometry(Part.LineSegment(Vector(49, -368, 0), Vector(49, -374, 0)), False)
sketch9.addGeometry(Part.LineSegment(Vector(49, -374, 0), Vector(162, -374, 0)), False)
sketch9.addGeometry(Part.LineSegment(Vector(162, -374, 0), Vector(162, -368, 0)), False)
sketch9.addGeometry(Part.LineSegment(Vector(162, -508, 0), Vector(49, -508, 0)), False)
sketch9.addGeometry(Part.LineSegment(Vector(49, -508, 0), Vector(49, -514, 0)), False)
sketch9.addGeometry(Part.LineSegment(Vector(49, -514, 0), Vector(162, -514, 0)), False)
sketch9.addGeometry(Part.LineSegment(Vector(162, -514, 0), Vector(162, -508, 0)), False)
sketch9.addConstraint(Sketcher.Constraint("Coincident", 0, 2, 1, 1))
sketch9.addConstraint(Sketcher.Constraint("Coincident", 1, 2, 2, 1))
sketch9.addConstraint(Sketcher.Constraint("Coincident", 2, 2, 3, 1))
sketch9.addConstraint(Sketcher.Constraint("Coincident", 3, 2, 0, 1))
sketch9.addConstraint(Sketcher.Constraint("Coincident", 4, 2, 5, 1))
sketch9.addConstraint(Sketcher.Constraint("Coincident", 5, 2, 6, 1))
sketch9.addConstraint(Sketcher.Constraint("Coincident", 6, 2, 7, 1))
sketch9.addConstraint(Sketcher.Constraint("Coincident", 7, 2, 4, 1))
sketch9.addConstraint(Sketcher.Constraint("Horizontal", 0))
sketch9.addConstraint(Sketcher.Constraint("Vertical", 1))
sketch9.addConstraint(Sketcher.Constraint("Horizontal", 2))
sketch9.addConstraint(Sketcher.Constraint("Vertical", 3))
sketch9.addConstraint(Sketcher.Constraint("Horizontal", 4))
sketch9.addConstraint(Sketcher.Constraint("Vertical", 5))
sketch9.addConstraint(Sketcher.Constraint("Horizontal", 6))
sketch9.addConstraint(Sketcher.Constraint("Vertical", 7))
sketch9.addConstraint(Sketcher.Constraint("Vertical", 1, 2, 4, 2))
sketch9.addConstraint(Sketcher.Constraint("Vertical", 3, 2, 6, 2))
sketch9.addConstraint(Sketcher.Constraint("Equal", 3, 5))
sketch9.addConstraint(Sketcher.Constraint("DistanceX", 0, 2, 0, 1, Q("113 mm")))
sketch9.addConstraint(Sketcher.Constraint("DistanceY", 1, 2, 1, 1, Q("6.2 mm")))
sketch9.addConstraint(Sketcher.Constraint("DistanceY", 4, 2, 0, 2, Q("140 mm")))
sketch9.addConstraint(Sketcher.Constraint("DistanceY", 0, 2, -1, 1, Q("367.8117 mm")))
sketch9.addConstraint(Sketcher.Constraint("DistanceX", -1, 1, 0, 2, Q("48.915862 mm")))
pocket4 = body.newObject("PartDesign::Pocket", "Pocket003")
pocket4.Profile = sketch9
pocket4.Length = 113

sketch10 = body.newObject("Sketcher::SketchObject", "Sketch009")
sketch10.AttachmentSupport = (doc.getObject("XY_Plane"), [""])
sketch10.MapMode = "FlatFace"
sketch10.AttachmentOffset = App.Placement(Vector(0, 0, -250.9117), App.Rotation())
sketch10.addGeometry(Part.LineSegment(Vector(0, 275, 0), Vector(0, 247, 0)), False)
sketch10.addGeometry(Part.LineSegment(Vector(0, 247, 0), Vector(6, 247, 0)), False)
sketch10.addGeometry(Part.LineSegment(Vector(6, 247, 0), Vector(6, 275, 0)), False)
sketch10.addGeometry(Part.LineSegment(Vector(6, 275, 0), Vector(0, 275, 0)), False)
sketch10.addGeometry(Part.LineSegment(Vector(0, 77, 0), Vector(0, 49, 0)), False)
sketch10.addGeometry(Part.LineSegment(Vector(0, 49, 0), Vector(6, 49, 0)), False)
sketch10.addGeometry(Part.LineSegment(Vector(6, 49, 0), Vector(6, 77, 0)), False)
sketch10.addGeometry(Part.LineSegment(Vector(6, 77, 0), Vector(0, 77, 0)), False)
sketch10.addConstraint(Sketcher.Constraint("Coincident", 0, 2, 1, 1))
sketch10.addConstraint(Sketcher.Constraint("Coincident", 1, 2, 2, 1))
sketch10.addConstraint(Sketcher.Constraint("Coincident", 2, 2, 3, 1))
sketch10.addConstraint(Sketcher.Constraint("Coincident", 3, 2, 0, 1))
sketch10.addConstraint(Sketcher.Constraint("Coincident", 4, 2, 5, 1))
sketch10.addConstraint(Sketcher.Constraint("Coincident", 5, 2, 6, 1))
sketch10.addConstraint(Sketcher.Constraint("Coincident", 6, 2, 7, 1))
sketch10.addConstraint(Sketcher.Constraint("Coincident", 7, 2, 4, 1))
sketch10.addConstraint(Sketcher.Constraint("Vertical", 0))
sketch10.addConstraint(Sketcher.Constraint("Horizontal", 1))
sketch10.addConstraint(Sketcher.Constraint("Vertical", 2))
sketch10.addConstraint(Sketcher.Constraint("Horizontal", 3))
sketch10.addConstraint(Sketcher.Constraint("Vertical", 4))
sketch10.addConstraint(Sketcher.Constraint("Horizontal", 5))
sketch10.addConstraint(Sketcher.Constraint("Vertical", 6))
sketch10.addConstraint(Sketcher.Constraint("Horizontal", 7))
sketch10.addConstraint(Sketcher.Constraint("PointOnObject", 0, 2, -2))
sketch10.addConstraint(Sketcher.Constraint("PointOnObject", 4, 2, -2))
sketch10.addConstraint(Sketcher.Constraint("Vertical", 2, 2, 5, 2))
sketch10.addConstraint(Sketcher.Constraint("Equal", 2, 4))
sketch10.addConstraint(Sketcher.Constraint("DistanceX", 1, 1, 1, 2, Q("6 mm")))
sketch10.addConstraint(Sketcher.Constraint("DistanceY", 0, 2, 0, 1, Q("28 mm")))
sketch10.addConstraint(Sketcher.Constraint("DistanceY", 4, 2, 0, 2, Q("198 mm")))
sketch10.addConstraint(Sketcher.Constraint("DistanceY", -1, 1, 0, 2, Q("246.915862 mm")))
pocket5 = body.newObject("PartDesign::Pocket", "Pocket004")
pocket5.Profile = sketch10
pocket5.Length = 1000

doc.recompute()
